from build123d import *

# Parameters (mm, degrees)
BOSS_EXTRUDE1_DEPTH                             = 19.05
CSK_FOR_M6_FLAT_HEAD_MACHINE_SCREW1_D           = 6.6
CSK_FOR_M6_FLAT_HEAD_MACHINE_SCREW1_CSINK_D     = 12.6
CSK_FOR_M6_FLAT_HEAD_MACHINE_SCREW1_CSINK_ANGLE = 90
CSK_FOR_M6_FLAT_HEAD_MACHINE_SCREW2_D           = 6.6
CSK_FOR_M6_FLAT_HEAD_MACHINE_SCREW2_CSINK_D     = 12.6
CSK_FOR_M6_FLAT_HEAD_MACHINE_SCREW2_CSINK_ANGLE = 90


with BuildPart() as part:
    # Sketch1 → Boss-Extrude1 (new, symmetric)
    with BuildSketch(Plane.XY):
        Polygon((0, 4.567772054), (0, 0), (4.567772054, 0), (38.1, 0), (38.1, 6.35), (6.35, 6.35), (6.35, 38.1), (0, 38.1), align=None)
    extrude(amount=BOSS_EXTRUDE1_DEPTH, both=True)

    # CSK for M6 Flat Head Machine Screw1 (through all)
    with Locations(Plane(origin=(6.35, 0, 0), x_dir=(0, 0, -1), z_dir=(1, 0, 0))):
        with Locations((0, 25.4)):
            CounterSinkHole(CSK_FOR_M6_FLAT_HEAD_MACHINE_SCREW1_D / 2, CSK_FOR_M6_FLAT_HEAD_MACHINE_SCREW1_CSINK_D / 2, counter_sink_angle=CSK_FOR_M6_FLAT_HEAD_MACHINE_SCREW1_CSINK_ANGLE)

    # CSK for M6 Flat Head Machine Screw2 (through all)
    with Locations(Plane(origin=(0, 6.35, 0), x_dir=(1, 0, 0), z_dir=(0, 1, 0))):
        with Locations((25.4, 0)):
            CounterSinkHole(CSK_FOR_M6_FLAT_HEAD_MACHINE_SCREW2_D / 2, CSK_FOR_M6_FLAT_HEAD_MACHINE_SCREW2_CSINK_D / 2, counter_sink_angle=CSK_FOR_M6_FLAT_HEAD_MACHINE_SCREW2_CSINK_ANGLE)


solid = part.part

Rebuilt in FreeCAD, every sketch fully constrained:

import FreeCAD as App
import Part
import Sketcher
from FreeCAD import Vector
Q = App.Units.Quantity

doc = App.newDocument("Part")
body = doc.addObject("PartDesign::Body", "Body")

sketch1 = doc.addObject("Sketcher::SketchObject", "Sketch")
body.addObject(sketch1)
sketch1.AttachmentSupport = (doc.XY_Plane, [""])
sketch1.MapMode = "FlatFace"
sketch1.addGeometry([
    Part.LineSegment(Vector(0, 0, 0), Vector(38, 0, 0)),
    Part.LineSegment(Vector(38, 0, 0), Vector(38, 6, 0)),
    Part.LineSegment(Vector(38, 6, 0), Vector(6, 6, 0)),
    Part.LineSegment(Vector(6, 6, 0), Vector(6, 38, 0)),
    Part.LineSegment(Vector(6, 38, 0), Vector(0, 38, 0)),
    Part.LineSegment(Vector(0, 38, 0), Vector(0, 0, 0)),
], False)
sketch1.addConstraint([
    Sketcher.Constraint("Coincident", 0, 2, 1, 1),
    Sketcher.Constraint("Coincident", 1, 2, 2, 1),
    Sketcher.Constraint("Coincident", 2, 2, 3, 1),
    Sketcher.Constraint("Coincident", 3, 2, 4, 1),
    Sketcher.Constraint("Coincident", 4, 2, 5, 1),
    Sketcher.Constraint("Coincident", 5, 2, 0, 1),
    Sketcher.Constraint("Horizontal", 0),
    Sketcher.Constraint("Vertical", 1),
    Sketcher.Constraint("Horizontal", 2),
    Sketcher.Constraint("Vertical", 3),
    Sketcher.Constraint("Horizontal", 4),
    Sketcher.Constraint("Vertical", 5),
    Sketcher.Constraint("Coincident", 5, 2, -1, 1),
    Sketcher.Constraint("Equal", 4, 1),
    Sketcher.Constraint("Equal", 2, 3),
    Sketcher.Constraint("DistanceX", 0, 1, 0, 2, Q("1.5 in")),
    Sketcher.Constraint("DistanceX", 2, 2, 2, 1, Q("1.25 in")),
])
pad1 = doc.addObject("PartDesign::Pad", "Pad")
body.addObject(pad1)
pad1.Profile = sketch1
pad1.Length = Q("1.5 in")
pad1.Midplane = True

sketch2 = doc.addObject("Sketcher::SketchObject", "Sketch001")
body.addObject(sketch2)
sketch2.AttachmentSupport = (doc.YZ_Plane, [""])
sketch2.MapMode = "FlatFace"
sketch2.AttachmentOffset = App.Placement(Vector(0, 0, 0.25 * 25.4), App.Rotation())
sketch2.addGeometry(Part.Circle(Vector(25.4, 0, 0), Vector(0, 0, 1), 3.3), False)
sketch2.addConstraint([
    Sketcher.Constraint("PointOnObject", 0, 3, -1),
    Sketcher.Constraint("DistanceX", -1, 1, 0, 3, Q("1 in")),
    Sketcher.Constraint("Diameter", 0, Q("6.6 mm")),
])
doc.recompute()
hole = doc.addObject("PartDesign::Hole", "Hole")
body.addObject(hole)
hole.Profile = sketch2
hole.ThreadType = "None"
hole.Diameter = 6.6
hole.DepthType = "ThroughAll"
hole.HoleCutType = "Countersink"
hole.HoleCutDiameter = 12.6
hole.HoleCutCountersinkAngle = 90

sketch3 = doc.addObject("Sketcher::SketchObject", "Sketch002")
body.addObject(sketch3)
sketch3.AttachmentSupport = (doc.XZ_Plane, [""])
sketch3.MapMode = "FlatFace"
sketch3.AttachmentOffset = App.Placement(Vector(0, 0, -0.25 * 25.4), App.Rotation())
sketch3.addGeometry(Part.Circle(Vector(25.4, 0, 0), Vector(0, 0, 1), 3.3), False)
sketch3.addConstraint([
    Sketcher.Constraint("PointOnObject", 0, 3, -1),
    Sketcher.Constraint("DistanceX", -1, 1, 0, 3, Q("1 in")),
    Sketcher.Constraint("Diameter", 0, Q("6.6 mm")),
])
doc.recompute()
hole2 = doc.addObject("PartDesign::Hole", "Hole001")
body.addObject(hole2)
hole2.Profile = sketch3
hole2.ThreadType = "None"
hole2.Diameter = 6.6
hole2.DepthType = "ThroughAll"
hole2.HoleCutType = "Countersink"
hole2.HoleCutDiameter = 12.6
hole2.HoleCutCountersinkAngle = 90
hole2.Reversed = True

doc.recompute()
